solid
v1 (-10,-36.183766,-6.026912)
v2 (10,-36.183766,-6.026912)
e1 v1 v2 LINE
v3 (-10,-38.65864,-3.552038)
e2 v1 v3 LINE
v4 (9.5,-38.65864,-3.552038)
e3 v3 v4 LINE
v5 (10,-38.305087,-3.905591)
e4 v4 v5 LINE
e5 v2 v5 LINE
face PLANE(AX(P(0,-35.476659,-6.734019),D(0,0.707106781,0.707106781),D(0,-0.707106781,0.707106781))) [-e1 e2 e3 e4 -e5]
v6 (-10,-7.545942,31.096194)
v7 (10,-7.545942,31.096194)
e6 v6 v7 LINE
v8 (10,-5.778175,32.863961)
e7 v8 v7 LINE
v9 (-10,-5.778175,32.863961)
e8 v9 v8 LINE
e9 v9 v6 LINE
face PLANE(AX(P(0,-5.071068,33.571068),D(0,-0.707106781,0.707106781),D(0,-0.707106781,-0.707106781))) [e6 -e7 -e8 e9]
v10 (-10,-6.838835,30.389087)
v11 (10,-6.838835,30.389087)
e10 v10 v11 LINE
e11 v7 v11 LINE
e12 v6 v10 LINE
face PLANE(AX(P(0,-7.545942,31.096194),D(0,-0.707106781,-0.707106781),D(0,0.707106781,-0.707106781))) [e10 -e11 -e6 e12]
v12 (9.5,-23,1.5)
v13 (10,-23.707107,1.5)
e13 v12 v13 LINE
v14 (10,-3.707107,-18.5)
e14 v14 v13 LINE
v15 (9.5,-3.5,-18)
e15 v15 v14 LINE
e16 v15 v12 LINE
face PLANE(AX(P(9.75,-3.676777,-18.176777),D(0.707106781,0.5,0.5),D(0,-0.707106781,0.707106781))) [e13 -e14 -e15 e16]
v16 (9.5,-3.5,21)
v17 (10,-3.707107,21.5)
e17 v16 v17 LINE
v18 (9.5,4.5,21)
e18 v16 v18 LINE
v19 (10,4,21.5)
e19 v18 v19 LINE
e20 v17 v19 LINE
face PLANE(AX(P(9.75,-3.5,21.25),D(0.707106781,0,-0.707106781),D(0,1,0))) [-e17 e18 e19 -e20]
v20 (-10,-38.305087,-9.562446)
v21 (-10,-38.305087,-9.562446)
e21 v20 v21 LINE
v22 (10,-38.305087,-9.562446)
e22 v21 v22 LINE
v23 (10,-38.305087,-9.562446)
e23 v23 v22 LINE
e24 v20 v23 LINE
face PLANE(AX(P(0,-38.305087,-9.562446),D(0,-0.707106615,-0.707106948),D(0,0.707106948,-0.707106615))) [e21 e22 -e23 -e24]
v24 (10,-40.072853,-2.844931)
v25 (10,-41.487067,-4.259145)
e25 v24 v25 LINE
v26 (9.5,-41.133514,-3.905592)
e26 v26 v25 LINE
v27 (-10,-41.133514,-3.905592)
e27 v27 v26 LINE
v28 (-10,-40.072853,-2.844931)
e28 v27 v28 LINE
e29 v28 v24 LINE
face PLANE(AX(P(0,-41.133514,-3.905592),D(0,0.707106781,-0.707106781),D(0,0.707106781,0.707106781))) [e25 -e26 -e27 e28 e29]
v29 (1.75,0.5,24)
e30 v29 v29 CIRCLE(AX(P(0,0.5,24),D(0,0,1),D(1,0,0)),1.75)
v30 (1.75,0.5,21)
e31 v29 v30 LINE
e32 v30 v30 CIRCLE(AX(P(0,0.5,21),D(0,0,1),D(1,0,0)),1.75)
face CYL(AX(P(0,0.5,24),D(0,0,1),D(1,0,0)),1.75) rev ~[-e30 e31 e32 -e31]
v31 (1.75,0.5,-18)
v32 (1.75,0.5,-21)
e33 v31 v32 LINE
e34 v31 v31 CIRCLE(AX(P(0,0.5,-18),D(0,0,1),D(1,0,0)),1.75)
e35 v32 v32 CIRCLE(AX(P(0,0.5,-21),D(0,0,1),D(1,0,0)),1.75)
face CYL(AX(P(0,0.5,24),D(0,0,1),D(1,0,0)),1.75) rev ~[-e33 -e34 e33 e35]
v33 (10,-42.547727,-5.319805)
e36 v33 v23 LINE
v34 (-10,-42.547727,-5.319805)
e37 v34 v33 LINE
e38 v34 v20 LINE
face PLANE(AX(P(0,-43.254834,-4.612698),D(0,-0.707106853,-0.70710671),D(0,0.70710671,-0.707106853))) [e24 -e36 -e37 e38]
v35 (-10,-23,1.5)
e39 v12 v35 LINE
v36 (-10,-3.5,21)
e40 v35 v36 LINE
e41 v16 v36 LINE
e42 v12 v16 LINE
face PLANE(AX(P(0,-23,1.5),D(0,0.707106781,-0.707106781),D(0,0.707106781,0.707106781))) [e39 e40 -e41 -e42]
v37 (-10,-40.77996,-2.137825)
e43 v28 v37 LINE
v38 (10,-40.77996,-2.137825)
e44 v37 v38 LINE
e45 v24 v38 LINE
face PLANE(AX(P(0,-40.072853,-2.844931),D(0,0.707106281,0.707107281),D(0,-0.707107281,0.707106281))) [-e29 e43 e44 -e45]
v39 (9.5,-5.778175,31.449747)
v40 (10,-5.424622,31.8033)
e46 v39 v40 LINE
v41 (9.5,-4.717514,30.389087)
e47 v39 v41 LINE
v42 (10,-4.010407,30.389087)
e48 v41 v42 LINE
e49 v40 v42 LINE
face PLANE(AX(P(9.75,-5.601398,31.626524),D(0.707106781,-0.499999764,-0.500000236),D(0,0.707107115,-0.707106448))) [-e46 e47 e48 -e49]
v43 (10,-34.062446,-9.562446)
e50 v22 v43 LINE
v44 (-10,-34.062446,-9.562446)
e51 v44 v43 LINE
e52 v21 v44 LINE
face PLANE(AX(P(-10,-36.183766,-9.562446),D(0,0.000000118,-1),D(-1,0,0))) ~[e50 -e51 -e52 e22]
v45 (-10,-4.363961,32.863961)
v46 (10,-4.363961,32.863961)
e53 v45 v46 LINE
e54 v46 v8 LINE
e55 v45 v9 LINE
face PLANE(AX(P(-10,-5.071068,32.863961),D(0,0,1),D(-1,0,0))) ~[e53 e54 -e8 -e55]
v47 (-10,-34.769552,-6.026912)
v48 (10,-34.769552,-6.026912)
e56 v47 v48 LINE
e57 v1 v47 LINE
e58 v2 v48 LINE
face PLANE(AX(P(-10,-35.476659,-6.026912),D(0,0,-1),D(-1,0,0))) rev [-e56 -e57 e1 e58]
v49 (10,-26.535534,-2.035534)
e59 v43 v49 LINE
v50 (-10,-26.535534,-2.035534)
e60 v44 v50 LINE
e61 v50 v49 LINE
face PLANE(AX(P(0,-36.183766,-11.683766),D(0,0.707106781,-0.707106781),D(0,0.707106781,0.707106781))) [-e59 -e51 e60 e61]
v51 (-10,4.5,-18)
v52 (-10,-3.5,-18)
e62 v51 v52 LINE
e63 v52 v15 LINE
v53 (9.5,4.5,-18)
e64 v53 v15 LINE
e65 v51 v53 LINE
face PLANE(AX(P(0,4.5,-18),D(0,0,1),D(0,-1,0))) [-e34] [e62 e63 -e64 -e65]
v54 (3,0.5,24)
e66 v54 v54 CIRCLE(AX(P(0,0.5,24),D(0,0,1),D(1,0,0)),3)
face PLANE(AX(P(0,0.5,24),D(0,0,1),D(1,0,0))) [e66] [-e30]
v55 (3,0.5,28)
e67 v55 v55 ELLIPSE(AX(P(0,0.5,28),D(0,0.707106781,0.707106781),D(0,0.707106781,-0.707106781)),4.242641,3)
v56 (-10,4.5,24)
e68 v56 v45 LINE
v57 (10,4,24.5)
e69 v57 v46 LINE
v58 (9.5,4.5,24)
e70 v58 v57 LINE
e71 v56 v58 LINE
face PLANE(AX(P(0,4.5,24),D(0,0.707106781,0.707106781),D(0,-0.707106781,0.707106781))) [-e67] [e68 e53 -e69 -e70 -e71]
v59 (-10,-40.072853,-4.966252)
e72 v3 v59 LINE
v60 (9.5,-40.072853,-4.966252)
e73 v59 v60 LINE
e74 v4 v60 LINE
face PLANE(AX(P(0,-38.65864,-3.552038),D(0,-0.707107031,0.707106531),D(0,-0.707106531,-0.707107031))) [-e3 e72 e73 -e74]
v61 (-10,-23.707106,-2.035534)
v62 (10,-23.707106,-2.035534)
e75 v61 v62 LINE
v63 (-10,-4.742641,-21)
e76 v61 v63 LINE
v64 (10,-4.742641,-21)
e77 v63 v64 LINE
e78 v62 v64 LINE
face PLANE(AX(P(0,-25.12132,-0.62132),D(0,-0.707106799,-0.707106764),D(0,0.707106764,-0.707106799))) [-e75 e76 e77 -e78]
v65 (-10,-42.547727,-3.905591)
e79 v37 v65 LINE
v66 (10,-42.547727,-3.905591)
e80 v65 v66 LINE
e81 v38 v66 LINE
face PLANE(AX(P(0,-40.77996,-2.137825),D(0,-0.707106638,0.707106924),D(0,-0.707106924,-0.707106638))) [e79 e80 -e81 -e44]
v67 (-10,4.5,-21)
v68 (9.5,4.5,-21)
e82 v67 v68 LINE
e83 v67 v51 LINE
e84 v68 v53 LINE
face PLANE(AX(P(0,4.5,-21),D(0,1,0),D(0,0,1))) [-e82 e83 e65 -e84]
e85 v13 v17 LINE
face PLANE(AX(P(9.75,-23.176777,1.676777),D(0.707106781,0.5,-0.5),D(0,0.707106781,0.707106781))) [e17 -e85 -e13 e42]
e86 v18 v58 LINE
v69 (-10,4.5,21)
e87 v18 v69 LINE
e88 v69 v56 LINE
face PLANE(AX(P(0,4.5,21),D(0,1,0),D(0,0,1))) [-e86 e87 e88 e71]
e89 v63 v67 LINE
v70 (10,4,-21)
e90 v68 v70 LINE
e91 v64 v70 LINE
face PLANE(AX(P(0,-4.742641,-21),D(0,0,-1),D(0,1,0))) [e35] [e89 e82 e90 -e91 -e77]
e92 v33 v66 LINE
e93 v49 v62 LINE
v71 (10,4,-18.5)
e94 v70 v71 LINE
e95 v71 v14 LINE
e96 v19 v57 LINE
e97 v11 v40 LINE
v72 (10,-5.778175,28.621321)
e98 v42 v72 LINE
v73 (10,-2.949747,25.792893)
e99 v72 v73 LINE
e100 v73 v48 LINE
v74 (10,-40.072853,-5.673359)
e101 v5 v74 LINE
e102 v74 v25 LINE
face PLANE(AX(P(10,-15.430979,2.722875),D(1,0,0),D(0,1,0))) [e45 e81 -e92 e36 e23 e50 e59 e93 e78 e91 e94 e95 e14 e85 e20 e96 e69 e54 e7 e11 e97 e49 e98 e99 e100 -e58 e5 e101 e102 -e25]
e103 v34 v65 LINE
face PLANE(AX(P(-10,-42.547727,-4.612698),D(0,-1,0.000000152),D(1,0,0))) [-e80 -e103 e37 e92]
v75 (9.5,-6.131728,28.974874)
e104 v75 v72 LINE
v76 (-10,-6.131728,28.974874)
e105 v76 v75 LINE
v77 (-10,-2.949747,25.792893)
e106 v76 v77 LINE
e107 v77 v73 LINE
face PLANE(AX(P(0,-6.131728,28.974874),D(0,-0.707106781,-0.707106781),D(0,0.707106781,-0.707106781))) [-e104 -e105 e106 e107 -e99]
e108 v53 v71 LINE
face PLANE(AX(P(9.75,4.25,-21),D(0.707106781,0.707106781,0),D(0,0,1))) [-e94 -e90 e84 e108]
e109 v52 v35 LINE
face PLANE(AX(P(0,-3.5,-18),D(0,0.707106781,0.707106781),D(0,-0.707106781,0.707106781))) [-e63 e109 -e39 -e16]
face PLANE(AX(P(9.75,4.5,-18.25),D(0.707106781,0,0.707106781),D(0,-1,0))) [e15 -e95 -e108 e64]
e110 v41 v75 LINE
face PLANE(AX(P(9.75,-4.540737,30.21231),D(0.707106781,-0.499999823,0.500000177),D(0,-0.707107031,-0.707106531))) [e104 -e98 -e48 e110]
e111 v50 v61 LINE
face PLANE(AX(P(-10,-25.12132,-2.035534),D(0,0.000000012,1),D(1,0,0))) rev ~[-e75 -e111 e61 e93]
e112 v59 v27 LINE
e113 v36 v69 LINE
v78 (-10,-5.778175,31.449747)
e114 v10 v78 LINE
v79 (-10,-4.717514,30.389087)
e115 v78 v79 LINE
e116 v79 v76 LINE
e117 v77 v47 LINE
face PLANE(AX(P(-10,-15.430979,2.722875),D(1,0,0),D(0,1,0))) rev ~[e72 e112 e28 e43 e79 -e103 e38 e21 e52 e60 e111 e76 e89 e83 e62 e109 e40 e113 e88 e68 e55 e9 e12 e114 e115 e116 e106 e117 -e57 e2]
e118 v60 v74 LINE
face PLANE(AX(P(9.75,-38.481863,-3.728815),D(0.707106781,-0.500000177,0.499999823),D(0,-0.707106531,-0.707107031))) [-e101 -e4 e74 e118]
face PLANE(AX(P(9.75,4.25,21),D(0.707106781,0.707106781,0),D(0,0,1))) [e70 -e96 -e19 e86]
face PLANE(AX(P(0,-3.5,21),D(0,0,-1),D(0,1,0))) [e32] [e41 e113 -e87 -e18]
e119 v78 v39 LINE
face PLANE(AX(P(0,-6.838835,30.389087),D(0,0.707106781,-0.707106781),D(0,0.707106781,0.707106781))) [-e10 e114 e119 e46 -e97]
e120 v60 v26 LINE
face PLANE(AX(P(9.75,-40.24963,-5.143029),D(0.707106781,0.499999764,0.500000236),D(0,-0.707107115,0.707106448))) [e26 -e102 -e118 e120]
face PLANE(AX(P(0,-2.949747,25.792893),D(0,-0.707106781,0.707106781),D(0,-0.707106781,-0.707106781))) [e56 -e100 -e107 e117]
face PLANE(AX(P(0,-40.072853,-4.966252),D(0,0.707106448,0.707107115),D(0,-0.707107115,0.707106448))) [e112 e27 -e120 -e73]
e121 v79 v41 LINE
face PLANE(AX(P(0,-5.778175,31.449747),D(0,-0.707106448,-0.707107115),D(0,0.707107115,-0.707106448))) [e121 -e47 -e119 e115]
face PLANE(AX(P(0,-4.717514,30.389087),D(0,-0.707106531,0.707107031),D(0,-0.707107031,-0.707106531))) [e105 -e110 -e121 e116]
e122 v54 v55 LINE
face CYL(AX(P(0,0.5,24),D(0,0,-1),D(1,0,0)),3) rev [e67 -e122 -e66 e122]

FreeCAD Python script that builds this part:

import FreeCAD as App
import Part
import Sketcher
Q = App.Units.Quantity


def edges_at(feature, points):
    """Names of the edges that pass closest to the given points."""
    edges = feature.Shape.Edges
    near = lambda p: min(range(len(edges)), key=lambda i: edges[i].distToShape(Part.Vertex(*p))[0])
    return sorted({f"Edge{near(p) + 1}" for p in points})

doc = App.newDocument("Part")
params = doc.addObject("Spreadsheet::Sheet", "Params")
for row, (alias, value) in enumerate([
    ("sketch1_diameter", "6 mm"),
    ("pad1_length", "10 mm"),
    ("sketch2_width", "8 mm"),
    ("sketch2_height", "3 mm"),
    ("sketch2_length", "1 mm"),
    ("sketch2_length2", "2 mm"),
    ("sketch2_length3", "46 mm"),
    ("pad2_length", "20 mm"),
    ("sketch3_diameter", "3.5 mm"),
    ("chamfer_size", "3 mm"),
    ("chamfer2_size", "2 mm"),
    ("chamfer3_size", "1 mm"),
    ("chamfer4_size", "0.5 mm"),
], start=1):
    params.set(f"A{row}", alias)
    params.set(f"B{row}", "=" + value)
    params.setAlias(f"B{row}", alias)

body = doc.addObject("PartDesign::Body", "Body")

# Sketch on XY plane
sketch1 = body.newObject("Sketcher::SketchObject", "Sketch")
sketch1.AttachmentSupport = (doc.getObject("XY_Plane"), [""])
sketch1.MapMode = "FlatFace"
sketch1.AttachmentOffset = App.Placement(App.Vector(0, 0, 24), App.Rotation())
sketch1.addGeometry(Part.Circle(App.Vector(0, 0.5, 0), App.Vector(0, 0, 1), 3), False)
sketch1.addConstraint([
    Sketcher.Constraint("PointOnObject", 0, 3, -2),
    Sketcher.Constraint("Diameter", 0, Q("6 mm")),
    Sketcher.Constraint("DistanceY", -1, 1, 0, 3, Q("0.5 mm")),
])
sketch1.setExpression("Constraints[1]", "Params.sketch1_diameter")
pad1 = body.newObject("PartDesign::Pad", "Pad")
pad1.Profile = sketch1
pad1.setExpression("Length", "Params.pad1_length")
body2 = doc.addObject("PartDesign::Body", "Body001")

# Sketch on YZ plane
sketch2 = body2.newObject("Sketcher::SketchObject", "Sketch001")
sketch2.AttachmentSupport = (doc.getObject("YZ_Plane001"), [""])
sketch2.MapMode = "FlatFace"
sketch2.addGeometry([
    Part.LineSegment(App.Vector(4.5, 21, 0), App.Vector(4.5, 24, 0)),  # 0
    Part.LineSegment(App.Vector(4.5, 24, 0), App.Vector(-5.1, 33.6, 0)),  # 1
    Part.LineSegment(App.Vector(-5.1, 33.6, 0), App.Vector(-7.5, 31.1, 0)),  # 2
    Part.LineSegment(App.Vector(-7.5, 31.1, 0), App.Vector(-6.8, 30.4, 0)),  # 3
    Part.LineSegment(App.Vector(-6.8, 30.4, 0), App.Vector(-5.8, 31.4, 0)),  # 4
    Part.LineSegment(App.Vector(-5.8, 31.4, 0), App.Vector(-4.7, 30.4, 0)),  # 5
    Part.LineSegment(App.Vector(-4.7, 30.4, 0), App.Vector(-6.1, 29, 0)),  # 6
    Part.LineSegment(App.Vector(-6.1, 29, 0), App.Vector(-2.9, 25.8, 0)),  # 7
    Part.LineSegment(App.Vector(-2.9, 25.8, 0), App.Vector(-35.5, -6.7, 0)),  # 8
    Part.LineSegment(App.Vector(-35.5, -6.7, 0), App.Vector(-38.7, -3.6, 0)),  # 9
    Part.LineSegment(App.Vector(-38.7, -3.6, 0), App.Vector(-40.1, -5, 0)),  # 10
    Part.LineSegment(App.Vector(-40.1, -5, 0), App.Vector(-41.1, -3.9, 0)),  # 11
    Part.LineSegment(App.Vector(-41.1, -3.9, 0), App.Vector(-40.1, -2.8, 0)),  # 12
    Part.LineSegment(App.Vector(-40.1, -2.8, 0), App.Vector(-40.8, -2.1, 0)),  # 13
    Part.LineSegment(App.Vector(-40.8, -2.1, 0), App.Vector(-43.3, -4.6, 0)),  # 14
    Part.LineSegment(App.Vector(-43.3, -4.6, 0), App.Vector(-38.3, -9.6, 0)),  # 15
    Part.LineSegment(App.Vector(-38.3, -9.6, 0), App.Vector(-36.2, -11.7, 0)),  # 16
    Part.LineSegment(App.Vector(-36.2, -11.7, 0), App.Vector(-25.1, -0.6, 0)),  # 17
    Part.LineSegment(App.Vector(-25.1, -0.6, 0), App.Vector(-4.7, -21, 0)),  # 18
    Part.LineSegment(App.Vector(-4.7, -21, 0), App.Vector(4.5, -21, 0)),  # 19
    Part.LineSegment(App.Vector(4.5, -21, 0), App.Vector(4.5, -18, 0)),  # 20
    Part.LineSegment(App.Vector(4.5, -18, 0), App.Vector(-3.5, -18, 0)),  # 21
    Part.LineSegment(App.Vector(-3.5, -18, 0), App.Vector(-23, 1.5, 0)),  # 22
    Part.LineSegment(App.Vector(-23, 1.5, 0), App.Vector(-3.5, 21, 0)),  # 23
    Part.LineSegment(App.Vector(-3.5, 21, 0), App.Vector(4.5, 21, 0)),  # 24
], False)
sketch2.addConstraint([
    Sketcher.Constraint("Coincident", 0, 2, 1, 1),
    Sketcher.Constraint("Coincident", 1, 2, 2, 1),
    Sketcher.Constraint("Coincident", 2, 2, 3, 1),
    Sketcher.Constraint("Coincident", 3, 2, 4, 1),
    Sketcher.Constraint("Coincident", 4, 2, 5, 1),
    Sketcher.Constraint("Coincident", 5, 2, 6, 1),
    Sketcher.Constraint("Coincident", 6, 2, 7, 1),
    Sketcher.Constraint("Coincident", 7, 2, 8, 1),
    Sketcher.Constraint("Coincident", 8, 2, 9, 1),
    Sketcher.Constraint("Coincident", 9, 2, 10, 1),
    Sketcher.Constraint("Coincident", 10, 2, 11, 1),
    Sketcher.Constraint("Coincident", 11, 2, 12, 1),
    Sketcher.Constraint("Coincident", 12, 2, 13, 1),
    Sketcher.Constraint("Coincident", 13, 2, 14, 1),
    Sketcher.Constraint("Coincident", 14, 2, 15, 1),
    Sketcher.Constraint("Coincident", 15, 2, 16, 1),
    Sketcher.Constraint("Coincident", 16, 2, 17, 1),
    Sketcher.Constraint("Coincident", 17, 2, 18, 1),
    Sketcher.Constraint("Coincident", 18, 2, 19, 1),
    Sketcher.Constraint("Coincident", 19, 2, 20, 1),
    Sketcher.Constraint("Coincident", 20, 2, 21, 1),
    Sketcher.Constraint("Coincident", 21, 2, 22, 1),
    Sketcher.Constraint("Coincident", 22, 2, 23, 1),
    Sketcher.Constraint("Coincident", 23, 2, 24, 1),
    Sketcher.Constraint("Coincident", 24, 2, 0, 1),
    Sketcher.Constraint("Vertical", 0),
    Sketcher.Constraint("Horizontal", 19),
    Sketcher.Constraint("Vertical", 20),
    Sketcher.Constraint("Horizontal", 21),
    Sketcher.Constraint("Horizontal", 24),
    Sketcher.Constraint("Symmetric", 19, 2, 24, 2, -1),
    Sketcher.Constraint("Perpendicular", 1, 2),
    Sketcher.Constraint("Perpendicular", 2, 3),
    Sketcher.Constraint("Perpendicular", 3, 4),
    Sketcher.Constraint("Perpendicular", 4, 5),
    Sketcher.Constraint("Perpendicular", 5, 6),
    Sketcher.Constraint("Perpendicular", 6, 7),
    Sketcher.Constraint("Perpendicular", 7, 8),
    Sketcher.Constraint("Perpendicular", 8, 9),
    Sketcher.Constraint("Perpendicular", 9, 10),
    Sketcher.Constraint("Perpendicular", 10, 11),
    Sketcher.Constraint("Perpendicular", 11, 12),
    Sketcher.Constraint("Perpendicular", 12, 13),
    Sketcher.Constraint("Perpendicular", 13, 14),
    Sketcher.Constraint("Perpendicular", 14, 15),
    Sketcher.Constraint("Parallel", 15, 16),
    Sketcher.Constraint("Perpendicular", 16, 17),
    Sketcher.Constraint("Perpendicular", 17, 18),
    Sketcher.Constraint("Parallel", 18, 22),
    Sketcher.Constraint("Perpendicular", 22, 23),
    Sketcher.Constraint("Horizontal", 3, 2, 5, 2),
    Sketcher.Constraint("Vertical", 10, 2, 12, 2),
    Sketcher.Constraint("Vertical", 21, 2, 23, 2),
    Sketcher.Constraint("Equal", 0, 20),
    Sketcher.Constraint("Equal", 4, 5),
    Sketcher.Constraint("Equal", 7, 9),
    Sketcher.Constraint("Equal", 6, 10),
    Sketcher.Constraint("Equal", 5, 11),
    Sketcher.Constraint("Equal", 3, 13),
    Sketcher.Constraint("Equal", 2, 14),
    Sketcher.Constraint("DistanceX", 21, 2, 21, 1, Q("8 mm")),
    Sketcher.Constraint("DistanceY", 0, 1, 0, 2, Q("3 mm")),
    Sketcher.Constraint("Distance", 3, Q("1 mm")),
    Sketcher.Constraint("Distance", 6, Q("2 mm")),
    Sketcher.Constraint("Distance", 8, Q("46 mm")),
    Sketcher.Constraint("Distance", 15, Q("7 mm")),
    Sketcher.Constraint("Distance", 16, Q("3 mm")),
    Sketcher.Constraint("DistanceY", -1, 1, 0, 2, Q("24 mm")),
    Sketcher.Constraint("DistanceX", 22, 2, -1, 1, Q("23 mm")),
    Sketcher.Constraint("Distance", 2, Q("3.5 mm")),
    Sketcher.Constraint("Distance", 4, Q("1.5 mm")),
    Sketcher.Constraint("Distance", 7, Q("4.500001 mm")),
    Sketcher.Constraint("DistanceX", 9, 2, 18, 2, Q("33.915999 mm")),
    Sketcher.Constraint("DistanceX", 19, 1, 19, 2, Q("9.242641 mm")),
])
sketch2.setExpression("Constraints[60]", "Params.sketch2_width")
sketch2.setExpression("Constraints[61]", "Params.sketch2_height")
sketch2.setExpression("Constraints[62]", "Params.sketch2_length")
sketch2.setExpression("Constraints[63]", "Params.sketch2_length2")
sketch2.setExpression("Constraints[64]", "Params.sketch2_length3")
pad2 = body2.newObject("PartDesign::Pad", "Pad001")
pad2.Profile = sketch2
pad2.setExpression("Length", "Params.pad2_length")
pad2.Midplane = True
doc.recompute()

boolean = body2.newObject("PartDesign::Boolean", "Boolean")
boolean.Type = "Cut"
boolean.addObjects([body])

# Sketch on XY plane
sketch3 = body2.newObject("Sketcher::SketchObject", "Sketch002")
sketch3.AttachmentSupport = (doc.getObject("XY_Plane001"), [""])
sketch3.MapMode = "FlatFace"
sketch3.AttachmentOffset = App.Placement(App.Vector(0, 0, 24), App.Rotation())
sketch3.addGeometry(Part.Circle(App.Vector(0, 0.5, 0), App.Vector(0, 0, 1), 1.8), False)
sketch3.addConstraint([
    Sketcher.Constraint("PointOnObject", 0, 3, -2),
    Sketcher.Constraint("Diameter", 0, Q("3.5 mm")),
    Sketcher.Constraint("DistanceY", -1, 1, 0, 3, Q("0.5 mm")),
])
sketch3.setExpression("Constraints[1]", "Params.sketch3_diameter")
pocket1 = body2.newObject("PartDesign::Pocket", "Pocket")
pocket1.Profile = sketch3
pocket1.Type = "ThroughAll"
doc.recompute()

chamfer = body2.newObject("PartDesign::Chamfer", "Chamfer")
chamfer.Base = (pocket1, edges_at(pocket1, [(0, -36.184, -11.684)]))
chamfer.setExpression("Size", "Params.chamfer_size")
doc.recompute()

chamfer2 = body2.newObject("PartDesign::Chamfer", "Chamfer001")
chamfer2.Base = (chamfer, edges_at(chamfer, [(0, -25.121, -0.621)]))
chamfer2.setExpression("Size", "Params.chamfer2_size")
doc.recompute()

chamfer3 = body2.newObject("PartDesign::Chamfer", "Chamfer002")
chamfer3.Base = (chamfer2, edges_at(chamfer2, [(0, -35.477, -6.734), (0, -43.255, -4.613), (0, -5.071, 33.571)]))
chamfer3.setExpression("Size", "Params.chamfer3_size")
doc.recompute()

chamfer4 = body2.newObject("PartDesign::Chamfer", "Chamfer003")
chamfer4.Base = (chamfer3, edges_at(chamfer3, [
    (10, -5.425, 29.682),
    (10, -39.366, -4.259),
    (10, -5.248, 30.919),
    (10, -40.603, -4.436),
    (10, 4.5, 22.5),
    (10, 0.5, 21),
    (10, -13.25, 11.25),
    (10, -13.25, -8.25),
    (10, 0.5, -18),
    (10, 4.5, -19.5),
]))
chamfer4.setExpression("Size", "Params.chamfer4_size")

doc.recompute()
